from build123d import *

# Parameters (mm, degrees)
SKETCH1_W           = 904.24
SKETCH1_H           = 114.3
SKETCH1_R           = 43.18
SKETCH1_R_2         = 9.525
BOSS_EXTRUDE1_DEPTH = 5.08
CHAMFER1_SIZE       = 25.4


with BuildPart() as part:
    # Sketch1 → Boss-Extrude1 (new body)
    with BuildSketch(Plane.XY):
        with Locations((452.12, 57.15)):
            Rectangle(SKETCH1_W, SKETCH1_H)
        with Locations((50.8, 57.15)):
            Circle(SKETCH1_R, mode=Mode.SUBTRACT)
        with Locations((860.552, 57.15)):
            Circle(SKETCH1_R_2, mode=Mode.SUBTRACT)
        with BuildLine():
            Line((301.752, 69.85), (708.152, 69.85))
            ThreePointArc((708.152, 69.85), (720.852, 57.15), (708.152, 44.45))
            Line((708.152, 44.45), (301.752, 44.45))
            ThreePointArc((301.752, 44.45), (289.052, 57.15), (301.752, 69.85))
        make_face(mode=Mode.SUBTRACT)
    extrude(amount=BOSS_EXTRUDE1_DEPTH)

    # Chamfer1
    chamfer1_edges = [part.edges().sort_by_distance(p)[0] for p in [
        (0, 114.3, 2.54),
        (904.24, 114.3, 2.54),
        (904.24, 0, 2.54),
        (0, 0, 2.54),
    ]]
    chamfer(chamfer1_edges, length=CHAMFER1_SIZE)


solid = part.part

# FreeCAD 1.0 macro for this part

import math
import FreeCAD as App
import Part
import Sketcher
Q = App.Units.Quantity


def edges_at(feature, points):
    """Names of the edges that pass closest to the given points."""
    edges = feature.Shape.Edges
    near = lambda p: min(range(len(edges)), key=lambda i: edges[i].distToShape(Part.Vertex(*p))[0])
    return sorted({f"Edge{near(p) + 1}" for p in points})


def add_polygon(sketch, points):
    """Adds a closed chain of lines whose ends are joined by coincident constraints."""
    first, n = sketch.GeometryCount, len(points)
    for a, b in zip(points, points[1:] + points[:1]):
        sketch.addGeometry(Part.LineSegment(App.Vector(*a, 0), App.Vector(*b, 0)), False)
    for i in range(n):
        sketch.addConstraint(Sketcher.Constraint("Coincident", first + i, 2, first + (i + 1) % n, 1))

doc = App.newDocument("Part")
body = doc.addObject("PartDesign::Body", "Body")

sketch1 = body.newObject("Sketcher::SketchObject", "Sketch")
sketch1.AttachmentSupport = (doc.getObject("XY_Plane"), [""])
sketch1.MapMode = "FlatFace"
add_polygon(sketch1, [(0, 114), (0, 0), (904, 0), (904, 114)])
sketch1.addGeometry(Part.Circle(App.Vector(51, 57, 0), App.Vector(0, 0, 1), 43), False)
sketch1.addGeometry(Part.ArcOfCircle(Part.Circle(App.Vector(302, 57, 0), App.Vector(0, 0, 1), 13), math.radians(90), math.radians(270)), False)
sketch1.addGeometry(Part.LineSegment(App.Vector(302, 70, 0), App.Vector(708, 70, 0)), False)
sketch1.addGeometry(Part.ArcOfCircle(Part.Circle(App.Vector(708, 57, 0), App.Vector(0, 0, 1), 13), math.radians(-90), math.radians(90)), False)
sketch1.addGeometry(Part.LineSegment(App.Vector(708, 44, 0), App.Vector(302, 44, 0)), False)
sketch1.addGeometry(Part.Circle(App.Vector(861, 57, 0), App.Vector(0, 0, 1), 10), False)
sketch1.addConstraint([
    Sketcher.Constraint("Tangent", 5, 1, 6, 1),
    Sketcher.Constraint("Tangent", 6, 2, 7, 2),
    Sketcher.Constraint("Tangent", 7, 1, 8, 1),
    Sketcher.Constraint("Tangent", 8, 2, 5, 2),
    Sketcher.Constraint("Vertical", 0),
    Sketcher.Constraint("Horizontal", 1),
    Sketcher.Constraint("Vertical", 2),
    Sketcher.Constraint("Horizontal", 3),
    Sketcher.Constraint("Horizontal", 6),
    Sketcher.Constraint("Horizontal", 8),
    Sketcher.Constraint("Coincident", 0, 2, -1, 1),
    Sketcher.Constraint("Horizontal", 4, 3, 5, 3),
    Sketcher.Constraint("Horizontal", 7, 3, 9, 3),
    Sketcher.Constraint("Diameter", 4, Q("3.4 in")),
    Sketcher.Constraint("Radius", 5, Q("0.5 in")),
    Sketcher.Constraint("Diameter", 9, Q("0.75 in")),
    Sketcher.Constraint("DistanceX", 6, 1, 6, 2, Q("16 in")),
    Sketcher.Constraint("DistanceX", 1, 1, 1, 2, Q("35.6 in")),
    Sketcher.Constraint("DistanceY", 0, 2, 0, 1, Q("4.5 in")),
    Sketcher.Constraint("DistanceX", -1, 1, 4, 3, Q("2 in")),
    Sketcher.Constraint("DistanceX", 7, 3, 9, 3, Q("6 in")),
    Sketcher.Constraint("DistanceY", -1, 1, 4, 3, Q("2.25 in")),
    Sketcher.Constraint("DistanceX", -1, 1, 5, 3, Q("11.88 in")),
])
pad1 = body.newObject("PartDesign::Pad", "Pad")
pad1.Profile = sketch1
pad1.Length = Q("0.2 in")
doc.recompute()

chamfer = body.newObject("PartDesign::Chamfer", "Chamfer")
chamfer.Base = (pad1, edges_at(pad1, [
    (0, 114.3, 2.54),
    (904.24, 114.3, 2.54),
    (904.24, 0, 2.54),
    (0, 0, 2.54),
]))
chamfer.Size = Q("1 in")

doc.recompute()
